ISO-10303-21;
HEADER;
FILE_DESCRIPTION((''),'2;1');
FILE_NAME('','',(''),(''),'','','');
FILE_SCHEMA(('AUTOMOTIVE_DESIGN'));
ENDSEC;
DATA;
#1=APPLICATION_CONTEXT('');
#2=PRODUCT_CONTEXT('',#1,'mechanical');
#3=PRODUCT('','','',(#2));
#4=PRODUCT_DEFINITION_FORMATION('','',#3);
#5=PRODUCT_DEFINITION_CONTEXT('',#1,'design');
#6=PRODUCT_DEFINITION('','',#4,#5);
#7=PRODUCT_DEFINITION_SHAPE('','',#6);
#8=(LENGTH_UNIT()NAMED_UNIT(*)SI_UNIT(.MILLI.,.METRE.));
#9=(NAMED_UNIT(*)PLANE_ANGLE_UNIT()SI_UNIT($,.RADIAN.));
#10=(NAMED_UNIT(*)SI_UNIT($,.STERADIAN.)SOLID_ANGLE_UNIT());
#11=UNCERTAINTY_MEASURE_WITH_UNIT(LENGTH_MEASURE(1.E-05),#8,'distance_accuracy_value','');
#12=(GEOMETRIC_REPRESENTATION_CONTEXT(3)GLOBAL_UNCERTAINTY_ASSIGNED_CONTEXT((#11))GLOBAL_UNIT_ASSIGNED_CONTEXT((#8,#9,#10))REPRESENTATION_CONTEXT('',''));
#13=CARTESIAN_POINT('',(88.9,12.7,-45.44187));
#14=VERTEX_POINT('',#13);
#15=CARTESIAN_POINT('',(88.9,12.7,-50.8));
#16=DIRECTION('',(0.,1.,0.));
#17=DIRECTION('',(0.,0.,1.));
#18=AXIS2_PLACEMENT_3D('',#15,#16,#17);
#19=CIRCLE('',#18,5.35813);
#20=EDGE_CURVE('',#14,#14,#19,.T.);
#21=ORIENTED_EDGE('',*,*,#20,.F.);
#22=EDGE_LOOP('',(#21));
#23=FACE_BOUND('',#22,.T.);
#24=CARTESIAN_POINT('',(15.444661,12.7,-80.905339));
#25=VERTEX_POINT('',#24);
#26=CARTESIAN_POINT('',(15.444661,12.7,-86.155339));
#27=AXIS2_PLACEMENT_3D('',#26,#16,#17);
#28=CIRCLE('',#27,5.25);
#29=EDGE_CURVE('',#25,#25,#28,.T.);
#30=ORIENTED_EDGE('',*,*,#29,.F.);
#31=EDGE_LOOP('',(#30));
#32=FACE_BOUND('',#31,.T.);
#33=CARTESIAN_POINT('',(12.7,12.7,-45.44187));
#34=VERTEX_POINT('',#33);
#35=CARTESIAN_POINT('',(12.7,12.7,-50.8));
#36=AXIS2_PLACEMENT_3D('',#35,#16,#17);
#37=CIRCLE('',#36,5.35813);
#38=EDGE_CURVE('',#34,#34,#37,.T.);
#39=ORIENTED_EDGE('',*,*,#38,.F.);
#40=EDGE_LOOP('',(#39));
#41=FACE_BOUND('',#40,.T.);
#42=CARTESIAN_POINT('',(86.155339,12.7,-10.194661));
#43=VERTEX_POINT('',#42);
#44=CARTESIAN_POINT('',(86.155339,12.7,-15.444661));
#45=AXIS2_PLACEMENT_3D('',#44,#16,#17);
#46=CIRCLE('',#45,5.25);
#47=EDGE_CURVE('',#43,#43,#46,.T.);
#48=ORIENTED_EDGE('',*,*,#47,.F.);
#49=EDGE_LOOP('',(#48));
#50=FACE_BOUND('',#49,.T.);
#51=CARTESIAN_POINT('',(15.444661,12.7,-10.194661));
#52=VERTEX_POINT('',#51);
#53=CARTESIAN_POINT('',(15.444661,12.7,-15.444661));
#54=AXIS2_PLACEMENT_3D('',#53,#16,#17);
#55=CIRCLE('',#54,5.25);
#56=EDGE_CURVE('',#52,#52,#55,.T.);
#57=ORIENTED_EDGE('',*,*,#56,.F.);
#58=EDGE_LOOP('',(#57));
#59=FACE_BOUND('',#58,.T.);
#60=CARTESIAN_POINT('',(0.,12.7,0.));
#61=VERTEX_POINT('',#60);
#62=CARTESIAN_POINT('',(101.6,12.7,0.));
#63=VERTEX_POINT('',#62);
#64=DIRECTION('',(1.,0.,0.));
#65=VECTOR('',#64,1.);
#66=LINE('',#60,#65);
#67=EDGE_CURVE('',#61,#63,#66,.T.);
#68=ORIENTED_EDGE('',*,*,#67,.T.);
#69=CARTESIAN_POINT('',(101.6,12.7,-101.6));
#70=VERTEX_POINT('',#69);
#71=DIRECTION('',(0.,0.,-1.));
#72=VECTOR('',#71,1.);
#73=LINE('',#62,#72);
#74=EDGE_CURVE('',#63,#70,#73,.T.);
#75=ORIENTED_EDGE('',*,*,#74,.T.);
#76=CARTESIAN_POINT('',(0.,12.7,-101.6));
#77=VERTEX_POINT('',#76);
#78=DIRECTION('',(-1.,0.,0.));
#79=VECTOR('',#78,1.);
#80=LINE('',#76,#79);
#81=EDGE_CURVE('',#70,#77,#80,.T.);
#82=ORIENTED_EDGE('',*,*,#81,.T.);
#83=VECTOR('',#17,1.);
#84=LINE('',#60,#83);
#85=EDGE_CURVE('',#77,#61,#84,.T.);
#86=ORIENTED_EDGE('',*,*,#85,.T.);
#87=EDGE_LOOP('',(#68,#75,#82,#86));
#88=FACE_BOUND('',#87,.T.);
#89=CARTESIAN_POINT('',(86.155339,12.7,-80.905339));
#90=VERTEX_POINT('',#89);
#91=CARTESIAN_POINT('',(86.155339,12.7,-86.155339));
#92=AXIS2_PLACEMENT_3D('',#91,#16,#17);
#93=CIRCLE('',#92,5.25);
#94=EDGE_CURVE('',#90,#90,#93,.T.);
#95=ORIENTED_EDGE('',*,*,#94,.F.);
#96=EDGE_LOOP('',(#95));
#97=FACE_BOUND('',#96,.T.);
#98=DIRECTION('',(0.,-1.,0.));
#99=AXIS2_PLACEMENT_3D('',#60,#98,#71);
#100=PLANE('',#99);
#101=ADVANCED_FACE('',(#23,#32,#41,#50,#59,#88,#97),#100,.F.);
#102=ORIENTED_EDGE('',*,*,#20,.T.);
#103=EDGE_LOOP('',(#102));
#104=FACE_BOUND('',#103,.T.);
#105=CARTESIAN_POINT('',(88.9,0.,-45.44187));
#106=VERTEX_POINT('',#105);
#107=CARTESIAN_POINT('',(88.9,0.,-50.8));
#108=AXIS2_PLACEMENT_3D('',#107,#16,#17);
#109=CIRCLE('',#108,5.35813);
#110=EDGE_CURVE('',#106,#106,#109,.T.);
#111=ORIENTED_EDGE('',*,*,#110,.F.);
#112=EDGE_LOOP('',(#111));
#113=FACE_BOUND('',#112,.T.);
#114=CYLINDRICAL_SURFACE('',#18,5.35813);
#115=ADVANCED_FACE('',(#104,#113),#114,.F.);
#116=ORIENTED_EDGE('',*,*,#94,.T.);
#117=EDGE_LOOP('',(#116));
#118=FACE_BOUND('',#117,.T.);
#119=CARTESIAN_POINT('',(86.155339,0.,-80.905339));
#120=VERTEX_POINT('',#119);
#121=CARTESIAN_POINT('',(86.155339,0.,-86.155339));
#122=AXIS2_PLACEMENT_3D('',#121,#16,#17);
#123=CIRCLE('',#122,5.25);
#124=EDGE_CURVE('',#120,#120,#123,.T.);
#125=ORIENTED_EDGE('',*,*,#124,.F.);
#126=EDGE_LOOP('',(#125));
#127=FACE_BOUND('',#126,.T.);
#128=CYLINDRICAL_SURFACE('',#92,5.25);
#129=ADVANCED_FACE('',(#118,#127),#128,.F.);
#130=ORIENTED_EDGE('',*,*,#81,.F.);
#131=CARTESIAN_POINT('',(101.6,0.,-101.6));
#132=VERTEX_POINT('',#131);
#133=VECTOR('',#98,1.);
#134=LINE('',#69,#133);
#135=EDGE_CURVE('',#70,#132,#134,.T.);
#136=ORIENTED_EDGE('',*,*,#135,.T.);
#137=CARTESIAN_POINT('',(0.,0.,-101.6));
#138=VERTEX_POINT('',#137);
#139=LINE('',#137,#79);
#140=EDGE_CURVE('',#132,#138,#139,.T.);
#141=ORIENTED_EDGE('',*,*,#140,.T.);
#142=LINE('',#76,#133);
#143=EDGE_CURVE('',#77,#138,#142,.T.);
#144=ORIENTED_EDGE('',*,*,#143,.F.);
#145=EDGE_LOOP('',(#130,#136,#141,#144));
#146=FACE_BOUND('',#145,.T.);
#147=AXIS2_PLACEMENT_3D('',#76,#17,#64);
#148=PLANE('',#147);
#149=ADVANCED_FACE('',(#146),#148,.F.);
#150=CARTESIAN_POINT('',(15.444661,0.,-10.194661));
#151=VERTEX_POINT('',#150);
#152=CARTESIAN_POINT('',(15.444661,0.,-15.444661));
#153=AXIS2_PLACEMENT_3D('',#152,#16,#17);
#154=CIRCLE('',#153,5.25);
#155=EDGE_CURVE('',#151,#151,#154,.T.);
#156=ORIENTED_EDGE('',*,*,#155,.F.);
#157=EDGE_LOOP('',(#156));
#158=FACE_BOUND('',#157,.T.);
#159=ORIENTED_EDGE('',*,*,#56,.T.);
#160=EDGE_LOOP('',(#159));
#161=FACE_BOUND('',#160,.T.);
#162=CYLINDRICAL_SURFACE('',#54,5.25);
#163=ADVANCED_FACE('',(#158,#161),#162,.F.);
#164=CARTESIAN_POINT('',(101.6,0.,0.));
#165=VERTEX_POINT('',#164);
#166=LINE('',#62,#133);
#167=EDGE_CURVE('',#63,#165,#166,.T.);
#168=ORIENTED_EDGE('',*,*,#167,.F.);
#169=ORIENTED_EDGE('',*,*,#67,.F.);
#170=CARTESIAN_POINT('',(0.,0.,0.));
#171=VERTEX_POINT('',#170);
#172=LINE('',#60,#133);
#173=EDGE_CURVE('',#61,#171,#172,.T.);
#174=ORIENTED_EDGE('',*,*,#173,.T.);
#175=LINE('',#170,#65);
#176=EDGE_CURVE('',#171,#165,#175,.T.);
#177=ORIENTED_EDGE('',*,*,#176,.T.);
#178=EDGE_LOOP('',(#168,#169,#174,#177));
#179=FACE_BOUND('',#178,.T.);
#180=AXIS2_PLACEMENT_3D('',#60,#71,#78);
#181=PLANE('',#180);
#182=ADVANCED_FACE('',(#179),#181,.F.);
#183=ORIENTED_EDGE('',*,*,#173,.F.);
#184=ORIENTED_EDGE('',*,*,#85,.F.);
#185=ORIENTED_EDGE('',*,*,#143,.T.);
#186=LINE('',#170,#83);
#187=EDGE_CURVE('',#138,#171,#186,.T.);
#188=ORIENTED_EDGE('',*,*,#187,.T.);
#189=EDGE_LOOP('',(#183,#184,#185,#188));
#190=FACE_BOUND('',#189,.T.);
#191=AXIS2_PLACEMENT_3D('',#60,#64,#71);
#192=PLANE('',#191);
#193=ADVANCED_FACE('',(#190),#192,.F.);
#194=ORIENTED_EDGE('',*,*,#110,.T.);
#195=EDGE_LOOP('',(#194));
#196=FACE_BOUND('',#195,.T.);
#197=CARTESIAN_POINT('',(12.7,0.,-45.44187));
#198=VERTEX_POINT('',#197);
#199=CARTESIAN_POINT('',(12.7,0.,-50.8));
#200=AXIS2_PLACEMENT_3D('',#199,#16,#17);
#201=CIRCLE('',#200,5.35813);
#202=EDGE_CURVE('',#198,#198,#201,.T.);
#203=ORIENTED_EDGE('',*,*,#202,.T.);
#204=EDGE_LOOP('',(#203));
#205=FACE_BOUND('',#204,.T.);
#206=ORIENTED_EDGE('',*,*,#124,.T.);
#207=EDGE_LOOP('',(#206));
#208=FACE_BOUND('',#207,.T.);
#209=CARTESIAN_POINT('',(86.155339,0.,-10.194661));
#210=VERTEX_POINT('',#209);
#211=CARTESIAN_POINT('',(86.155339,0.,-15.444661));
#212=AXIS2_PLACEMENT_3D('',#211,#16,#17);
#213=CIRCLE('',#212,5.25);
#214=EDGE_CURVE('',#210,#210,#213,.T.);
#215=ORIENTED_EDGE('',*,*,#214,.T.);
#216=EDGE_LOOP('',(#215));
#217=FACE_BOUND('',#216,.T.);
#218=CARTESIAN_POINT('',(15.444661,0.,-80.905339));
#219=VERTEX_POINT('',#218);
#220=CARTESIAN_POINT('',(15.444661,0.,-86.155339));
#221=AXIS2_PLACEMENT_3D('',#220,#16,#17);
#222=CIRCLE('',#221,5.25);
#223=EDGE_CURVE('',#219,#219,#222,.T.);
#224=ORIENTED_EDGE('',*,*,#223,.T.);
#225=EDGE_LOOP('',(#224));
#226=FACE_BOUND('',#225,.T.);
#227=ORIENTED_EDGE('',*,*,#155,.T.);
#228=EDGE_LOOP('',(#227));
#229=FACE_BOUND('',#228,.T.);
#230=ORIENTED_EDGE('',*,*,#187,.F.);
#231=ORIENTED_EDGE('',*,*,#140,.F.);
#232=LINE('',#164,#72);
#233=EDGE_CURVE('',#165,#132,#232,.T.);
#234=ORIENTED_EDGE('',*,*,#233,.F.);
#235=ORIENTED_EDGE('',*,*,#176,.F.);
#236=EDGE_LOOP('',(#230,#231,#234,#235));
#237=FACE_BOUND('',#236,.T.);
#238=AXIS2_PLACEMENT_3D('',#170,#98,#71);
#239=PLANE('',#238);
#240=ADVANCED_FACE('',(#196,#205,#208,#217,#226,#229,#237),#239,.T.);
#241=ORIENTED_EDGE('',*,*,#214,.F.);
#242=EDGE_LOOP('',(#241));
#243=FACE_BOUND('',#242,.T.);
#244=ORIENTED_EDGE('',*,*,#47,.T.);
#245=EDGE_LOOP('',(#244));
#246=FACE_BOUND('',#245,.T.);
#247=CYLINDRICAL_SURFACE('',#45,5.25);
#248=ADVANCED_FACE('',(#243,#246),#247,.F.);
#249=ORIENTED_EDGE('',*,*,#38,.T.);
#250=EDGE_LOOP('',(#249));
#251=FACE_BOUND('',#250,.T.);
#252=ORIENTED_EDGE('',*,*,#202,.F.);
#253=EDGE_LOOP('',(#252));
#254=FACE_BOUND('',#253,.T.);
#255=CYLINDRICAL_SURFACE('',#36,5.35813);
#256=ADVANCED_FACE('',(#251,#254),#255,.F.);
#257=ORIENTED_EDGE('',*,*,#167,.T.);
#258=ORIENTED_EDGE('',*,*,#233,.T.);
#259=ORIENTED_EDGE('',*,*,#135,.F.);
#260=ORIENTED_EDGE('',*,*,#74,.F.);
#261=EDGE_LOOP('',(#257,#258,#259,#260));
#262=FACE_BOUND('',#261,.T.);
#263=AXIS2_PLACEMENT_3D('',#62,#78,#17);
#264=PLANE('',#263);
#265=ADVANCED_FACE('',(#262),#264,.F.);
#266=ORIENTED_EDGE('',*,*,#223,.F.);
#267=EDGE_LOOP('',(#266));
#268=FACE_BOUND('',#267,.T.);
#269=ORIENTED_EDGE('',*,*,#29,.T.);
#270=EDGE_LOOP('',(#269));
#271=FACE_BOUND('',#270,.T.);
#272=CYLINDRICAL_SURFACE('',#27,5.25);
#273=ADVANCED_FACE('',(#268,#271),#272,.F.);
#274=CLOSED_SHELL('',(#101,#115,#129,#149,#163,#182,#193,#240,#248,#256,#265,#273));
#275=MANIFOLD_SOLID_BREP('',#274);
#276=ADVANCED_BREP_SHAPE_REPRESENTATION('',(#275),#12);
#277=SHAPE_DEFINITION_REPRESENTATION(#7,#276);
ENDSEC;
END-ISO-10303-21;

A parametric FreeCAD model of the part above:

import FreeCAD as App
import Part
import Sketcher
from FreeCAD import Vector
Q = App.Units.Quantity


def add_polygon(sketch, points):
    """Adds a closed chain of lines whose ends are joined by coincident constraints."""
    first, n = sketch.GeometryCount, len(points)
    for a, b in zip(points, points[1:] + points[:1]):
        sketch.addGeometry(Part.LineSegment(App.Vector(*a, 0), App.Vector(*b, 0)), False)
    for i in range(n):
        sketch.addConstraint(Sketcher.Constraint("Coincident", first + i, 2, first + (i + 1) % n, 1))

doc = App.newDocument("Part")
body = doc.addObject("PartDesign::Body", "Body")

# Sketch on XZ plane
sketch1 = body.newObject("Sketcher::SketchObject", "Sketch")
sketch1.AttachmentSupport = (doc.getObject("XZ_Plane"), [""])
sketch1.MapMode = "FlatFace"
add_polygon(sketch1, [(0, -102), (0, 0), (102, 0), (102, -102)])  # lines 0-3
sketch1.addConstraint(Sketcher.Constraint("Vertical", 0))
sketch1.addConstraint(Sketcher.Constraint("Horizontal", 1))
sketch1.addConstraint(Sketcher.Constraint("Vertical", 2))
sketch1.addConstraint(Sketcher.Constraint("Horizontal", 3))
sketch1.addConstraint(Sketcher.Constraint("Coincident", 0, 2, -1, 1))
sketch1.addConstraint(Sketcher.Constraint("Equal", 3, 0))
sketch1.addConstraint(Sketcher.Constraint("DistanceX", 1, 1, 1, 2, Q("4 in")))
pad1 = body.newObject("PartDesign::Pad", "Pad")
pad1.Profile = sketch1
pad1.Length = Q("0.5 in")
pad1.Reversed = True

# Sketch on XZ plane
sketch2 = body.newObject("Sketcher::SketchObject", "Sketch001")
sketch2.AttachmentSupport = (doc.getObject("XZ_Plane"), [""])
sketch2.MapMode = "FlatFace"
sketch2.AttachmentOffset = App.Placement(Vector(0, 0, -0.5 * 25.4), App.Rotation())
sketch2.addGeometry(Part.Circle(Vector(86, -86, 0), Vector(0, 0, 1), 5), False)
sketch2.addGeometry(Part.Circle(Vector(86, -15, 0), Vector(0, 0, 1), 5), False)
sketch2.addGeometry(Part.Circle(Vector(15, -86, 0), Vector(0, 0, 1), 5), False)
sketch2.addGeometry(Part.Circle(Vector(15, -15, 0), Vector(0, 0, 1), 5), False)
sketch2.addConstraint(Sketcher.Constraint("Equal", 0, 1))
sketch2.addConstraint(Sketcher.Constraint("Equal", 1, 2))
sketch2.addConstraint(Sketcher.Constraint("Equal", 2, 3))
sketch2.addConstraint(Sketcher.Constraint("Horizontal", 0, 3, 2, 3))
sketch2.addConstraint(Sketcher.Constraint("Horizontal", 1, 3, 3, 3))
sketch2.addConstraint(Sketcher.Constraint("Vertical", 0, 3, 1, 3))
sketch2.addConstraint(Sketcher.Constraint("Vertical", 2, 3, 3, 3))
sketch2.addConstraint(Sketcher.Constraint("Diameter", 0, 10.5))
sketch2.addConstraint(Sketcher.Constraint("DistanceX", -1, 1, 0, 3, 86.155339))
sketch2.addConstraint(Sketcher.Constraint("DistanceY", 0, 3, -1, 1, 86.155339))
sketch2.addConstraint(Sketcher.Constraint("DistanceY", 1, 3, -1, 1, 15.444661))
sketch2.addConstraint(Sketcher.Constraint("DistanceX", -1, 1, 2, 3, 15.444661))
doc.recompute()
hole = body.newObject("PartDesign::Hole", "Hole")
hole.Profile = sketch2
hole.ThreadType = "None"
hole.Diameter = 10.5
hole.DepthType = "ThroughAll"
hole.Reversed = True

# Sketch on XZ plane
sketch3 = body.newObject("Sketcher::SketchObject", "Sketch002")
sketch3.AttachmentSupport = (doc.getObject("XZ_Plane"), [""])
sketch3.MapMode = "FlatFace"
sketch3.AttachmentOffset = App.Placement(Vector(0, 0, -0.5 * 25.4), App.Rotation())
sketch3.addGeometry(Part.Circle(Vector(89, -51, 0), Vector(0, 0, 1), 5), False)
sketch3.addGeometry(Part.Circle(Vector(13, -51, 0), Vector(0, 0, 1), 5), False)
sketch3.addConstraint(Sketcher.Constraint("Equal", 0, 1))
sketch3.addConstraint(Sketcher.Constraint("Horizontal", 0, 3, 1, 3))
sketch3.addConstraint(Sketcher.Constraint("DistanceY", 0, 3, -1, 1, Q("2 in")))
sketch3.addConstraint(Sketcher.Constraint("DistanceX", 1, 3, 0, 3, Q("3 in")))
sketch3.addConstraint(Sketcher.Constraint("Diameter", 0, Q("0.4219 in")))
sketch3.addConstraint(Sketcher.Constraint("DistanceX", -1, 1, 0, 3, Q("3.5 in")))
doc.recompute()
hole2 = body.newObject("PartDesign::Hole", "Hole001")
hole2.Profile = sketch3
hole2.ThreadType = "None"
hole2.Diameter = Q("0.4219 in")
hole2.DepthType = "ThroughAll"
hole2.Reversed = True

doc.recompute()
